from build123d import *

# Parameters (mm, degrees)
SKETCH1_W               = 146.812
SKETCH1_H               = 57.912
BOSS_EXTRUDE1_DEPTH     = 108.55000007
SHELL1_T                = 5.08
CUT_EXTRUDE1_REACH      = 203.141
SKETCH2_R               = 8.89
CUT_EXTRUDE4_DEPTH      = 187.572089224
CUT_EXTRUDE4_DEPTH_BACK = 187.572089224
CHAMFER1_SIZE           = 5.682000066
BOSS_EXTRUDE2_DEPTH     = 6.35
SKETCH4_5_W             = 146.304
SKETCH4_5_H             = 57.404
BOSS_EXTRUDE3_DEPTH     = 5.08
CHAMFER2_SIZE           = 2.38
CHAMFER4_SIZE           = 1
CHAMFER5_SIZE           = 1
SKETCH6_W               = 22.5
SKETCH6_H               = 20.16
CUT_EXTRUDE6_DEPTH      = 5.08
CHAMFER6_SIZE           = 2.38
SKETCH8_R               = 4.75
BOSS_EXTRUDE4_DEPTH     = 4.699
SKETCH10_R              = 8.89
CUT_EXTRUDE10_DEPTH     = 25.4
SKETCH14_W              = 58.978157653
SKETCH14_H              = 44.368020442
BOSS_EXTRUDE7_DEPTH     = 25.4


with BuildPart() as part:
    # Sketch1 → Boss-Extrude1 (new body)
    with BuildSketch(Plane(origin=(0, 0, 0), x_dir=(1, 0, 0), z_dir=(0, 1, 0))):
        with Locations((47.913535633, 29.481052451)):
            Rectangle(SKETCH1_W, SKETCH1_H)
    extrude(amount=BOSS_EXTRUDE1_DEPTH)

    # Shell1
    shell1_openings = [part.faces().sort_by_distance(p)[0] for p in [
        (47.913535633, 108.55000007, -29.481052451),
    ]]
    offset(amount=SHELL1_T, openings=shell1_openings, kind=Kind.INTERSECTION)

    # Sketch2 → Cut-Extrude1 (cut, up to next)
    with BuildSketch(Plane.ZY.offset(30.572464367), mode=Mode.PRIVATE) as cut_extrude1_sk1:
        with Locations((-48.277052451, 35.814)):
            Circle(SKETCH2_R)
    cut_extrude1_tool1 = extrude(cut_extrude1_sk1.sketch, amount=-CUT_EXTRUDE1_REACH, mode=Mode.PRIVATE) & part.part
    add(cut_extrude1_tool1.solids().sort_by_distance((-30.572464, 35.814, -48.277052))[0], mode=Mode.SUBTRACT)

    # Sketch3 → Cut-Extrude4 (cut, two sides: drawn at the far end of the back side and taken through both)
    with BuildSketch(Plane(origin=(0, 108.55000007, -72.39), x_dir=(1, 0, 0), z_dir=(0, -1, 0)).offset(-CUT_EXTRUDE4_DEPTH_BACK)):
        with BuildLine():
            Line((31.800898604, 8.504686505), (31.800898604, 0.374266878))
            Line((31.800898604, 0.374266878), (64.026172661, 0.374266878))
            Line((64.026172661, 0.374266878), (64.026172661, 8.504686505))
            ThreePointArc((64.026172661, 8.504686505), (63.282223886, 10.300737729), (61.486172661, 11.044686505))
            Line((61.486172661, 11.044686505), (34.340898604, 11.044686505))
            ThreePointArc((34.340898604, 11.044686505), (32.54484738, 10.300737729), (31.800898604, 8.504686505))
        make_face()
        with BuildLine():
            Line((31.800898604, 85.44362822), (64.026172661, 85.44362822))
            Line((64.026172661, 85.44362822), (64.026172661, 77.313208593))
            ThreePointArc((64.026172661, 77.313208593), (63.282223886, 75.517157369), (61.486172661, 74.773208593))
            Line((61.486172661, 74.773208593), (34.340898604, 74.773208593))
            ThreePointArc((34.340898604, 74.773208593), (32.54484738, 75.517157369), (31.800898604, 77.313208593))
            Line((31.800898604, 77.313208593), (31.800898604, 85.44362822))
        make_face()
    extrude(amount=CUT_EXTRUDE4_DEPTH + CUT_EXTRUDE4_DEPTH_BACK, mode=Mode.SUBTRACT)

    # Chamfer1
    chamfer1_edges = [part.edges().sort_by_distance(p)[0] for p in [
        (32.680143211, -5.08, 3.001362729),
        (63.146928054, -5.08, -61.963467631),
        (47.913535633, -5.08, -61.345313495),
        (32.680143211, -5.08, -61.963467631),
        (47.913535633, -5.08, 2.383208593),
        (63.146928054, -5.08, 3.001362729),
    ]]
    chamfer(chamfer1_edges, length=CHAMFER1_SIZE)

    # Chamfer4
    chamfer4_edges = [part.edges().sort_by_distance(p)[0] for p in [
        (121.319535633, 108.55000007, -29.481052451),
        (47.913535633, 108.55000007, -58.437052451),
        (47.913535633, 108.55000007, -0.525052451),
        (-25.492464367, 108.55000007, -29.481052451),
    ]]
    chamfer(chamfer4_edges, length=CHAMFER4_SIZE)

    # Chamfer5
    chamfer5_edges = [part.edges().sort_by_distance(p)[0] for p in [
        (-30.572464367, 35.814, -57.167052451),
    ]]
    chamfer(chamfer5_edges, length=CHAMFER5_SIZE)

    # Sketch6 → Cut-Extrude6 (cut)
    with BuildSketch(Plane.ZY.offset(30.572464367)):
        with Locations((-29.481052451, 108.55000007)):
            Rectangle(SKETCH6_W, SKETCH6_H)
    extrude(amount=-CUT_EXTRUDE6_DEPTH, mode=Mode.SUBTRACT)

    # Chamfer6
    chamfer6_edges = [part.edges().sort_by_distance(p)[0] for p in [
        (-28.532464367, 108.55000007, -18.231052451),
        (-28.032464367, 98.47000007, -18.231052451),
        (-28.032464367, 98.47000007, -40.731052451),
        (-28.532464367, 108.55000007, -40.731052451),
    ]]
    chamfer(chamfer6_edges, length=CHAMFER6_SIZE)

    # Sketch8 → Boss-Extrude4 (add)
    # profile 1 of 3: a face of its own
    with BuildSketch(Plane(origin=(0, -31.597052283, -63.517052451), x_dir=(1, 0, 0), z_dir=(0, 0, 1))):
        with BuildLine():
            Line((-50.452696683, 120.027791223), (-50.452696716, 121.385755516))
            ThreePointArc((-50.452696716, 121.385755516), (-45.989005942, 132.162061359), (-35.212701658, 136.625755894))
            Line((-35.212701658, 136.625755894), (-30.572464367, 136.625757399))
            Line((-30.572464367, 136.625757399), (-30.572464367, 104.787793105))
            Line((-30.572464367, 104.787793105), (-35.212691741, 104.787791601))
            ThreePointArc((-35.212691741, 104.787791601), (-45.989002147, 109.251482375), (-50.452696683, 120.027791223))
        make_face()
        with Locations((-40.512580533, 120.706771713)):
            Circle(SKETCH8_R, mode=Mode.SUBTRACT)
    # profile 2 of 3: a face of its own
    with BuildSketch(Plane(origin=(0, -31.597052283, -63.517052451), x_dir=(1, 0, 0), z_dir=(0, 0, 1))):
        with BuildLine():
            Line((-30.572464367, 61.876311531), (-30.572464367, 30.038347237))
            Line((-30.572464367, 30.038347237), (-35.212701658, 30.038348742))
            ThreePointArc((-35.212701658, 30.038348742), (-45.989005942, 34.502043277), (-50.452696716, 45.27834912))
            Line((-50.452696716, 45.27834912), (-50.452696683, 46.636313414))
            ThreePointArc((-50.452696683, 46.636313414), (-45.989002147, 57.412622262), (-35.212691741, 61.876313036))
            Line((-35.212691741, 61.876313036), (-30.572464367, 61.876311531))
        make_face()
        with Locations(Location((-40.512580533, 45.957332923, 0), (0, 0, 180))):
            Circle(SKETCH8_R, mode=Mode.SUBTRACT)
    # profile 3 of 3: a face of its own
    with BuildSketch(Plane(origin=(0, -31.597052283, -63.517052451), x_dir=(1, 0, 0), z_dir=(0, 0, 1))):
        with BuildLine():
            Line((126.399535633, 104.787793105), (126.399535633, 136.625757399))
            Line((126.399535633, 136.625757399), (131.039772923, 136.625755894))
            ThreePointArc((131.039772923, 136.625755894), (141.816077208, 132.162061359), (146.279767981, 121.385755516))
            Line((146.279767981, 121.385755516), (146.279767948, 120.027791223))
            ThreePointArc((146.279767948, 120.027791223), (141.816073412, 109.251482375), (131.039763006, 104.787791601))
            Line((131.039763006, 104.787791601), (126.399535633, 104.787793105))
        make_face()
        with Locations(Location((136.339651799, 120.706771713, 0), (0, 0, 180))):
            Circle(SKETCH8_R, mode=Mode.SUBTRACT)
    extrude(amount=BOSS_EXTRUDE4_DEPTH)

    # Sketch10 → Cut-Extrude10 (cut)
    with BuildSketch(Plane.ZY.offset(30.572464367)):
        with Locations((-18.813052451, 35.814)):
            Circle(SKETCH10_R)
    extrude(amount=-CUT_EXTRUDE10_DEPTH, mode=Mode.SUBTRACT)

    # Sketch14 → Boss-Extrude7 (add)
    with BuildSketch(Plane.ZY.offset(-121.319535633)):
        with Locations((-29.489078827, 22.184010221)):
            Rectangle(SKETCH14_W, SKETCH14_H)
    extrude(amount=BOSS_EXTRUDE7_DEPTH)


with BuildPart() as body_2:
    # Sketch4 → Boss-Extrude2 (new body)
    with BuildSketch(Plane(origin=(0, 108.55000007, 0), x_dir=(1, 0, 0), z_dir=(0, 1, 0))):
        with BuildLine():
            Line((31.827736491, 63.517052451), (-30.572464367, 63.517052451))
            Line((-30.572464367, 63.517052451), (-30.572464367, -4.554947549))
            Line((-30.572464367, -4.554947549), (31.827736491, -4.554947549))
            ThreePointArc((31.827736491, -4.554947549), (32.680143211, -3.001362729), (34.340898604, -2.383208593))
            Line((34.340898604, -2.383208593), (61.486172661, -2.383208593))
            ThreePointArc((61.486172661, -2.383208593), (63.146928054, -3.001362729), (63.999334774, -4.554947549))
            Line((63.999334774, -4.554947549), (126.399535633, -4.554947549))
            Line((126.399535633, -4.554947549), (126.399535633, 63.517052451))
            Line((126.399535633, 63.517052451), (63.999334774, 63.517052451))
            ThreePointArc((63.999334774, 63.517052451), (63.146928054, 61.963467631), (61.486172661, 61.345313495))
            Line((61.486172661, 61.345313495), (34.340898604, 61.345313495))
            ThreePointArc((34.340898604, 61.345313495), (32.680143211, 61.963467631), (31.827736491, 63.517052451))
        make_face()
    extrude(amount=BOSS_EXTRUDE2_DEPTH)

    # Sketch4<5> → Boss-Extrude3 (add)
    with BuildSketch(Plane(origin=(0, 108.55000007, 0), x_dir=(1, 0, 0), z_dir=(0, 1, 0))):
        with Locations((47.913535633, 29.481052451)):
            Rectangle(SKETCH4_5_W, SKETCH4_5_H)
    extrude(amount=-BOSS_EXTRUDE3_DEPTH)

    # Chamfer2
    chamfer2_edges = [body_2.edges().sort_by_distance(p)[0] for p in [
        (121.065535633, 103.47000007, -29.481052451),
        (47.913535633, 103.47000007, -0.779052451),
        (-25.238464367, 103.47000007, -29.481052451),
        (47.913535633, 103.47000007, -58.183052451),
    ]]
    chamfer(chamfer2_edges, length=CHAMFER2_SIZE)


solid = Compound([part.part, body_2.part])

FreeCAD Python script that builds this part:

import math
import FreeCAD as App
import Part
import Sketcher
Q = App.Units.Quantity


def edges_at(feature, points):
    """Names of the edges that pass closest to the given points."""
    edges = feature.Shape.Edges
    near = lambda p: min(range(len(edges)), key=lambda i: edges[i].distToShape(Part.Vertex(*p))[0])
    return sorted({f"Edge{near(p) + 1}" for p in points})


def faces_at(feature, points):
    """Names of the faces that lie closest to the given points."""
    faces = feature.Shape.Faces
    near = lambda p: min(range(len(faces)), key=lambda i: faces[i].distToShape(Part.Vertex(*p))[0])
    return sorted({f"Face{near(p) + 1}" for p in points})


def add_polygon(sketch, points):
    """Adds a closed chain of lines whose ends are joined by coincident constraints."""
    first, n = sketch.GeometryCount, len(points)
    for a, b in zip(points, points[1:] + points[:1]):
        sketch.addGeometry(Part.LineSegment(App.Vector(*a, 0), App.Vector(*b, 0)), False)
    for i in range(n):
        sketch.addConstraint(Sketcher.Constraint("Coincident", first + i, 2, first + (i + 1) % n, 1))

doc = App.newDocument("Part")
params = doc.addObject("Spreadsheet::Sheet", "Params")
for row, (alias, value) in enumerate([
    ("sketch1_width", "5.78 in"),
    ("sketch1_height", "2.28 in"),
    ("pad1_length", "108.55 mm"),
    ("thickness_wall", "0.2 in"),
    ("sketch2_diameter", "0.7 in"),
    ("sketch3_radius", "0.1 in"),
    ("chamfer_size", "5.682 mm"),
    ("chamfer2_size", "1 mm"),
    ("chamfer3_size", "1 mm"),
    ("pocket3_length", "0.2 in"),
    ("chamfer4_size", "2.38 mm"),
    ("sketch5_radius", "0.6 in"),
    ("sketch5_radius2", "0.6 in"),
    ("sketch5_radius3", "0.6 in"),
    ("sketch5_radius4", "0.6 in"),
    ("sketch5_radius5", "0.6 in"),
    ("pad2_length", "0.185 in"),
    ("sketch6_diameter", "0.7 in"),
    ("pocket4_length", "1 in"),
    ("pad3_length", "1 in"),
    ("sketch8_radius", "0.1 in"),
    ("sketch8_height", "2.68 in"),
    ("pad4_length", "0.25 in"),
    ("sketch9_width", "5.76 in"),
    ("sketch9_height", "2.26 in"),
    ("pad5_length", "0.2 in"),
    ("chamfer5_size", "2.38 mm"),
], start=1):
    params.set(f"A{row}", alias)
    params.set(f"B{row}", "=" + value)
    params.setAlias(f"B{row}", alias)

body = doc.addObject("PartDesign::Body", "Body")

# Sketch on XZ plane
sketch1 = body.newObject("Sketcher::SketchObject", "Sketch")
sketch1.AttachmentSupport = (doc.getObject("XZ_Plane"), [""])
sketch1.MapMode = "FlatFace"
add_polygon(sketch1, [(-25, -58), (-25, -1), (121, -1), (121, -58)])  # lines 0-3
sketch1.addConstraint([
    Sketcher.Constraint("Vertical", 0),
    Sketcher.Constraint("Horizontal", 1),
    Sketcher.Constraint("Vertical", 2),
    Sketcher.Constraint("Horizontal", 3),
    Sketcher.Constraint("DistanceX", 1, 1, 1, 2, Q("5.78 in")),
    Sketcher.Constraint("DistanceY", 0, 1, 0, 2, Q("2.28 in")),
    Sketcher.Constraint("DistanceX", 0, 2, -1, 1, Q("25.492464 mm")),
    Sketcher.Constraint("DistanceY", 0, 2, -1, 1, Q("0.525052 mm")),
])
sketch1.setExpression("Constraints[8]", "Params.sketch1_width")
sketch1.setExpression("Constraints[9]", "Params.sketch1_height")
pad1 = body.newObject("PartDesign::Pad", "Pad")
pad1.Profile = sketch1
pad1.setExpression("Length", "Params.pad1_length")
pad1.Reversed = True
doc.recompute()

thickness = body.newObject("PartDesign::Thickness", "Thickness")
thickness.Base = (pad1, faces_at(pad1, [(47.914, 108.55, -29.481)]))
thickness.setExpression("Value", "Params.thickness_wall")
thickness.Reversed = False
thickness.Join = "Intersection"

# Sketch on YZ plane
sketch2 = body.newObject("Sketcher::SketchObject", "Sketch001")
sketch2.AttachmentSupport = (doc.getObject("YZ_Plane"), [""])
sketch2.MapMode = "FlatFace"
sketch2.AttachmentOffset = App.Placement(App.Vector(0, 0, -30.572464), App.Rotation())
sketch2.addGeometry(Part.Circle(App.Vector(36, -48, 0), App.Vector(0, 0, 1), 9), False)
sketch2.addConstraint([
    Sketcher.Constraint("Diameter", 0, Q("0.7 in")),
    Sketcher.Constraint("DistanceX", -1, 1, 0, 3, Q("1.41 in")),
    Sketcher.Constraint("DistanceY", 0, 3, -1, 1, Q("48.277052 mm")),
])
sketch2.setExpression("Constraints[0]", "Params.sketch2_diameter")
pocket1 = body.newObject("PartDesign::Pocket", "Pocket")
pocket1.Profile = sketch2
pocket1.Type = "UpToFirst"
pocket1.Reversed = True

# Sketch on XZ plane
sketch3 = body.newObject("Sketcher::SketchObject", "Sketch002")
sketch3.AttachmentSupport = (doc.getObject("XZ_Plane"), [""])
sketch3.MapMode = "FlatFace"
sketch3.AttachmentOffset = App.Placement(App.Vector(0, 0, -108.55), App.Rotation())
sketch3.addGeometry([
    Part.LineSegment(App.Vector(31.8, -63.9, 0), App.Vector(31.8, -72, 0)),  # 0
    Part.LineSegment(App.Vector(31.8, -72, 0), App.Vector(64, -72, 0)),  # 1
    Part.LineSegment(App.Vector(64, -72, 0), App.Vector(64, -63.9, 0)),  # 2
    Part.ArcOfCircle(Part.Circle(App.Vector(61.5, -63.9, 0), App.Vector(0, 0, 1), 2.5), math.radians(0), math.radians(90)),  # 3
    Part.LineSegment(App.Vector(61.5, -61.3, 0), App.Vector(34.3, -61.3, 0)),  # 4
    Part.ArcOfCircle(Part.Circle(App.Vector(34.3, -63.9, 0), App.Vector(0, 0, 1), 2.5), math.radians(90), math.radians(180)),  # 5
    Part.LineSegment(App.Vector(64, 13.1, 0), App.Vector(31.8, 13.1, 0)),  # 6
    Part.LineSegment(App.Vector(31.8, 13.1, 0), App.Vector(31.8, 4.9, 0)),  # 7
    Part.ArcOfCircle(Part.Circle(App.Vector(34.3, 4.9, 0), App.Vector(0, 0, 1), 2.5), math.radians(-180), math.radians(-90)),  # 8
    Part.LineSegment(App.Vector(34.3, 2.4, 0), App.Vector(61.5, 2.4, 0)),  # 9
    Part.ArcOfCircle(Part.Circle(App.Vector(61.5, 4.9, 0), App.Vector(0, 0, 1), 2.5), math.radians(-90), math.radians(0)),  # 10
    Part.LineSegment(App.Vector(64, 4.9, 0), App.Vector(64, 13.1, 0)),  # 11
], False)
sketch3.addConstraint([
    Sketcher.Constraint("Coincident", 0, 2, 1, 1),
    Sketcher.Constraint("Coincident", 1, 2, 2, 1),
    Sketcher.Constraint("Tangent", 2, 2, 3, 1),
    Sketcher.Constraint("Tangent", 3, 2, 4, 1),
    Sketcher.Constraint("Tangent", 4, 2, 5, 1),
    Sketcher.Constraint("Tangent", 5, 2, 0, 1),
    Sketcher.Constraint("Coincident", 6, 2, 7, 1),
    Sketcher.Constraint("Tangent", 7, 2, 8, 1),
    Sketcher.Constraint("Tangent", 8, 2, 9, 1),
    Sketcher.Constraint("Tangent", 9, 2, 10, 1),
    Sketcher.Constraint("Tangent", 10, 2, 11, 1),
    Sketcher.Constraint("Coincident", 11, 2, 6, 1),
    Sketcher.Constraint("Vertical", 0),
    Sketcher.Constraint("Horizontal", 1),
    Sketcher.Constraint("Vertical", 2),
    Sketcher.Constraint("Horizontal", 4),
    Sketcher.Constraint("Horizontal", 6),
    Sketcher.Constraint("Vertical", 7),
    Sketcher.Constraint("Horizontal", 9),
    Sketcher.Constraint("Vertical", 11),
    Sketcher.Constraint("Equal", 3, 5),
    Sketcher.Constraint("Equal", 5, 8),
    Sketcher.Constraint("Equal", 8, 10),
    Sketcher.Constraint("Vertical", 5, 3, 8, 3),
    Sketcher.Constraint("Vertical", 3, 3, 10, 3),
    Sketcher.Constraint("Equal", 2, 7),
    Sketcher.Constraint("Radius", 3, Q("0.1 in")),
    Sketcher.Constraint("DistanceY", 0, 2, 0, 1, Q("8.13042 mm")),
    Sketcher.Constraint("DistanceX", -1, 1, 5, 3, Q("34.340899 mm")),
    Sketcher.Constraint("DistanceX", 1, 1, 1, 2, Q("32.225274 mm")),
    Sketcher.Constraint("DistanceY", -1, 1, 8, 3, Q("4.923209 mm")),
    Sketcher.Constraint("DistanceY", 0, 2, 8, 3, Q("76.938942 mm")),
])
sketch3.setExpression("Constraints[26]", "Params.sketch3_radius")
pocket2 = body.newObject("PartDesign::Pocket", "Pocket001")
pocket2.Profile = sketch3
pocket2.Type = "ThroughAll"
pocket2.Midplane = True
doc.recompute()

chamfer = body.newObject("PartDesign::Chamfer", "Chamfer")
chamfer.Base = (pocket2, edges_at(pocket2, [
    (32.68, -5.08, 3.001),
    (63.147, -5.08, -61.963),
    (47.914, -5.08, -61.345),
    (32.68, -5.08, -61.963),
    (47.914, -5.08, 2.383),
    (63.147, -5.08, 3.001),
]))
chamfer.setExpression("Size", "Params.chamfer_size")
doc.recompute()

chamfer2 = body.newObject("PartDesign::Chamfer", "Chamfer001")
chamfer2.Base = (chamfer, edges_at(chamfer, [
    (121.32, 108.55, -29.481),
    (47.914, 108.55, -58.437),
    (47.914, 108.55, -0.525),
    (-25.492, 108.55, -29.481),
]))
chamfer2.setExpression("Size", "Params.chamfer2_size")
doc.recompute()

chamfer3 = body.newObject("PartDesign::Chamfer", "Chamfer002")
chamfer3.Base = (chamfer2, edges_at(chamfer2, [(-30.572, 35.814, -57.167)]))
chamfer3.setExpression("Size", "Params.chamfer3_size")

# Sketch on YZ plane
sketch4 = body.newObject("Sketcher::SketchObject", "Sketch003")
sketch4.AttachmentSupport = (doc.getObject("YZ_Plane"), [""])
sketch4.MapMode = "FlatFace"
sketch4.AttachmentOffset = App.Placement(App.Vector(0, 0, -30.572464), App.Rotation())
add_polygon(sketch4, [(119, -41), (98, -41), (98, -18), (119, -18)])  # lines 0-3
sketch4.addConstraint([
    Sketcher.Constraint("Horizontal", 0),
    Sketcher.Constraint("Vertical", 1),
    Sketcher.Constraint("Horizontal", 2),
    Sketcher.Constraint("Vertical", 3),
    Sketcher.Constraint("DistanceX", 0, 2, 0, 1, Q("20.16 mm")),
    Sketcher.Constraint("DistanceY", 1, 1, 1, 2, Q("22.5 mm")),
    Sketcher.Constraint("DistanceX", -1, 1, 0, 2, Q("98.47 mm")),
    Sketcher.Constraint("DistanceY", 0, 2, -1, 1, Q("40.731052 mm")),
])
pocket3 = body.newObject("PartDesign::Pocket", "Pocket002")
pocket3.Profile = sketch4
pocket3.setExpression("Length", "Params.pocket3_length")
pocket3.Reversed = True
doc.recompute()

chamfer4 = body.newObject("PartDesign::Chamfer", "Chamfer003")
chamfer4.Base = (pocket3, edges_at(pocket3, [
    (-28.532, 108.55, -18.231),
    (-28.032, 98.47, -18.231),
    (-28.032, 98.47, -40.731),
    (-28.532, 108.55, -40.731),
]))
chamfer4.setExpression("Size", "Params.chamfer4_size")

# Sketch on XY plane
sketch5 = body.newObject("Sketcher::SketchObject", "Sketch004")
sketch5.AttachmentSupport = (doc.getObject("XY_Plane"), [""])
sketch5.MapMode = "FlatFace"
sketch5.AttachmentOffset = App.Placement(App.Vector(0, 0, -63.517052), App.Rotation())
sketch5.addGeometry([
    Part.LineSegment(App.Vector(-50.452697, 89.788703, 0), App.Vector(-50.452697, 88.430739, 0)),  # 0
    Part.ArcOfCircle(Part.Circle(App.Vector(-35.212697, 88.430739, 0), App.Vector(0, 0, 1), 15.24), math.radians(-179.999999), math.radians(-89.999981)),  # 1
    Part.LineSegment(App.Vector(-35.212692, 73.190739, 0), App.Vector(-30.572464, 73.190741, 0)),  # 2
    Part.LineSegment(App.Vector(-30.572464, 73.190741, 0), App.Vector(-30.572464, 105.028705, 0)),  # 3
    Part.LineSegment(App.Vector(-30.572464, 105.028705, 0), App.Vector(-35.212702, 105.028704, 0)),  # 4
    Part.ArcOfCircle(Part.Circle(App.Vector(-35.212697, 89.788704, 0), App.Vector(0, 0, 1), 15.24), math.radians(90.000019), math.radians(180.000001)),  # 5
    Part.Circle(App.Vector(-40.512581, 89.109719, 0), App.Vector(0, 0, 1), 4.75),  # 6
    Part.LineSegment(App.Vector(-30.572464, -1.558705, 0), App.Vector(-30.572464, 30.279259, 0)),  # 7
    Part.LineSegment(App.Vector(-30.572464, 30.279259, 0), App.Vector(-35.212692, 30.279261, 0)),  # 8
    Part.ArcOfCircle(Part.Circle(App.Vector(-35.212697, 15.039261, 0), App.Vector(0, 0, 1), 15.24), math.radians(89.999981), math.radians(179.999999)),  # 9
    Part.LineSegment(App.Vector(-50.452697, 15.039261, 0), App.Vector(-50.452697, 13.681297, 0)),  # 10
    Part.ArcOfCircle(Part.Circle(App.Vector(-35.212697, 13.681296, 0), App.Vector(0, 0, 1), 15.24), math.radians(179.999999), math.radians(269.999981)),  # 11
    Part.LineSegment(App.Vector(-35.212702, -1.558704, 0), App.Vector(-30.572464, -1.558705, 0)),  # 12
    Part.Circle(App.Vector(-40.512581, 14.360281, 0), App.Vector(0, 0, 1), 4.75),  # 13
    Part.LineSegment(App.Vector(126.399536, 105.028705, 0), App.Vector(126.399536, 73.190741, 0)),  # 14
    Part.LineSegment(App.Vector(126.399536, 73.190741, 0), App.Vector(131.039763, 73.190739, 0)),  # 15
    Part.ArcOfCircle(Part.Circle(App.Vector(131.039768, 88.430739, 0), App.Vector(0, 0, 1), 15.24), math.radians(-90.000019), math.radians(-0.000001)),  # 16
    Part.LineSegment(App.Vector(146.279768, 88.430739, 0), App.Vector(146.279768, 89.788703, 0)),  # 17
    Part.ArcOfCircle(Part.Circle(App.Vector(131.039768, 89.788704, 0), App.Vector(0, 0, 1), 15.24), math.radians(-0.000001), math.radians(89.999981)),  # 18
    Part.LineSegment(App.Vector(131.039773, 105.028704, 0), App.Vector(126.399536, 105.028705, 0)),  # 19
    Part.Circle(App.Vector(136.339652, 89.109719, 0), App.Vector(0, 0, 1), 4.75),  # 20
], False)
sketch5.addConstraint([
    Sketcher.Constraint("Coincident", 0, 2, 1, 1),
    Sketcher.Constraint("Coincident", 1, 2, 2, 1),
    Sketcher.Constraint("Coincident", 2, 2, 3, 1),
    Sketcher.Constraint("Coincident", 3, 2, 4, 1),
    Sketcher.Constraint("Coincident", 4, 2, 5, 1),
    Sketcher.Constraint("Coincident", 5, 2, 0, 1),
    Sketcher.Constraint("Coincident", 7, 2, 8, 1),
    Sketcher.Constraint("Coincident", 8, 2, 9, 1),
    Sketcher.Constraint("Coincident", 9, 2, 10, 1),
    Sketcher.Constraint("Coincident", 10, 2, 11, 1),
    Sketcher.Constraint("Coincident", 11, 2, 12, 1),
    Sketcher.Constraint("Coincident", 12, 2, 7, 1),
    Sketcher.Constraint("Coincident", 14, 2, 15, 1),
    Sketcher.Constraint("Coincident", 15, 2, 16, 1),
    Sketcher.Constraint("Coincident", 16, 2, 17, 1),
    Sketcher.Constraint("Coincident", 17, 2, 18, 1),
    Sketcher.Constraint("Coincident", 18, 2, 19, 1),
    Sketcher.Constraint("Coincident", 19, 2, 14, 1),
    Sketcher.Constraint("Vertical", 0),
    Sketcher.Constraint("Horizontal", 2),
    Sketcher.Constraint("Vertical", 3),
    Sketcher.Constraint("Horizontal", 4),
    Sketcher.Constraint("Vertical", 7),
    Sketcher.Constraint("Horizontal", 8),
    Sketcher.Constraint("Vertical", 10),
    Sketcher.Constraint("Horizontal", 12),
    Sketcher.Constraint("Vertical", 14),
    Sketcher.Constraint("Horizontal", 15),
    Sketcher.Constraint("Vertical", 17),
    Sketcher.Constraint("Horizontal", 19),
    Sketcher.Constraint("Radius", 1, Q("0.6 in")),
    Sketcher.Constraint("Radius", 5, Q("0.6 in")),
    Sketcher.Constraint("Radius", 9, Q("0.6 in")),
    Sketcher.Constraint("Radius", 11, Q("0.6 in")),
    Sketcher.Constraint("Radius", 16, Q("0.6 in")),
    Sketcher.Constraint("Radius", 18, Q("0.6 in")),
    Sketcher.Constraint("DistanceX", 0, 2, 9, 3, Q("0.6 in")),
    Sketcher.Constraint("DistanceX", 0, 2, 1, 2, Q("0.6000002 in")),
    Sketcher.Constraint("DistanceY", 1, 2, 0, 2, Q("0.6 in")),
    Sketcher.Constraint("DistanceX", 0, 2, 4, 2, Q("0.5999998 in")),
    Sketcher.Constraint("DistanceY", 5, 2, 4, 2, Q("0.6 in")),
    Sketcher.Constraint("DistanceX", 9, 2, 8, 2, Q("0.6000002 in")),
    Sketcher.Constraint("DistanceY", 9, 2, 8, 2, Q("0.6 in")),
    Sketcher.Constraint("DistanceX", 10, 2, 11, 2, Q("0.5999998 in")),
    Sketcher.Constraint("DistanceY", 11, 2, 10, 2, Q("0.6 in")),
    Sketcher.Constraint("DistanceX", 15, 2, 16, 2, Q("0.6000002 in")),
    Sketcher.Constraint("DistanceY", 15, 2, 16, 2, Q("0.6 in")),
    Sketcher.Constraint("DistanceX", 18, 2, 17, 2, Q("0.5999998 in")),
    Sketcher.Constraint("DistanceY", 17, 2, 18, 2, Q("0.6 in")),
    Sketcher.Constraint("Diameter", 6, Q("9.5 mm")),
    Sketcher.Constraint("Diameter", 13, Q("9.5 mm")),
    Sketcher.Constraint("Diameter", 20, Q("9.5 mm")),
    Sketcher.Constraint("DistanceX", 2, 2, 14, 2, Q("6.18 in")),
    Sketcher.Constraint("DistanceX", 4, 2, -1, 1, Q("35.212702 mm")),
    Sketcher.Constraint("DistanceX", 2, 1, 2, 2, Q("4.640227 mm")),
    Sketcher.Constraint("DistanceX", 8, 2, 8, 1, Q("4.640227 mm")),
    Sketcher.Constraint("DistanceX", 15, 1, 15, 2, Q("4.640227 mm")),
    Sketcher.Constraint("DistanceY", 0, 2, 0, 1, Q("1.357964 mm")),
    Sketcher.Constraint("DistanceY", 7, 1, 7, 2, Q("31.837964 mm")),
    Sketcher.Constraint("DistanceY", 14, 2, 14, 1, Q("31.837964 mm")),
    Sketcher.Constraint("DistanceY", -1, 1, 1, 3, Q("88.430739 mm")),
    Sketcher.Constraint("DistanceX", 6, 3, -1, 1, Q("40.512581 mm")),
    Sketcher.Constraint("DistanceY", -1, 1, 6, 3, Q("89.109719 mm")),
    Sketcher.Constraint("DistanceY", -1, 1, 9, 3, Q("15.039261 mm")),
    Sketcher.Constraint("DistanceX", 13, 3, -1, 1, Q("40.512581 mm")),
    Sketcher.Constraint("DistanceY", -1, 1, 13, 3, Q("14.360281 mm")),
    Sketcher.Constraint("DistanceY", -1, 1, 16, 3, Q("88.430739 mm")),
    Sketcher.Constraint("DistanceX", -1, 1, 20, 3, Q("136.339652 mm")),
    Sketcher.Constraint("DistanceY", -1, 1, 20, 3, Q("89.109719 mm")),
])
sketch5.setExpression("Constraints[30]", "Params.sketch5_radius")
sketch5.setExpression("Constraints[31]", "Params.sketch5_radius2")
sketch5.setExpression("Constraints[32]", "Params.sketch5_radius3")
sketch5.setExpression("Constraints[33]", "Params.sketch5_radius4")
sketch5.setExpression("Constraints[34]", "Params.sketch5_radius5")
pad2 = body.newObject("PartDesign::Pad", "Pad001")
pad2.Profile = sketch5
pad2.setExpression("Length", "Params.pad2_length")

# Sketch on YZ plane
sketch6 = body.newObject("Sketcher::SketchObject", "Sketch005")
sketch6.AttachmentSupport = (doc.getObject("YZ_Plane"), [""])
sketch6.MapMode = "FlatFace"
sketch6.AttachmentOffset = App.Placement(App.Vector(0, 0, -30.572464), App.Rotation())
sketch6.addGeometry(Part.Circle(App.Vector(36, -19, 0), App.Vector(0, 0, 1), 9), False)
sketch6.addConstraint([
    Sketcher.Constraint("Diameter", 0, Q("0.7 in")),
    Sketcher.Constraint("DistanceX", -1, 1, 0, 3, Q("1.41 in")),
    Sketcher.Constraint("DistanceY", 0, 3, -1, 1, Q("18.813052 mm")),
])
sketch6.setExpression("Constraints[0]", "Params.sketch6_diameter")
pocket4 = body.newObject("PartDesign::Pocket", "Pocket003")
pocket4.Profile = sketch6
pocket4.setExpression("Length", "Params.pocket4_length")
pocket4.Reversed = True

# Sketch on YZ plane
sketch7 = body.newObject("Sketcher::SketchObject", "Sketch006")
sketch7.AttachmentSupport = (doc.getObject("YZ_Plane"), [""])
sketch7.MapMode = "FlatFace"
sketch7.AttachmentOffset = App.Placement(App.Vector(0, 0, 121.319536), App.Rotation())
add_polygon(sketch7, [(44, -59), (0, -59), (0, 0), (44, 0)])  # lines 0-3
sketch7.addConstraint([
    Sketcher.Constraint("Horizontal", 0),
    Sketcher.Constraint("Vertical", 1),
    Sketcher.Constraint("Horizontal", 2),
    Sketcher.Constraint("Vertical", 3),
    Sketcher.Constraint("Coincident", 1, 2, -1, 1),
    Sketcher.Constraint("DistanceX", 0, 2, 0, 1, Q("44.36802 mm")),
    Sketcher.Constraint("DistanceY", 1, 1, 1, 2, Q("58.978158 mm")),
])
pad3 = body.newObject("PartDesign::Pad", "Pad002")
pad3.Profile = sketch7
pad3.setExpression("Length", "Params.pad3_length")
pad3.Reversed = True
body2 = doc.addObject("PartDesign::Body", "Body001")

# Sketch on XZ plane
sketch8 = body2.newObject("Sketcher::SketchObject", "Sketch007")
sketch8.AttachmentSupport = (doc.getObject("XZ_Plane001"), [""])
sketch8.MapMode = "FlatFace"
sketch8.AttachmentOffset = App.Placement(App.Vector(0, 0, -108.55), App.Rotation())
sketch8.addGeometry([
    Part.LineSegment(App.Vector(31.8, -63.5, 0), App.Vector(-30.6, -63.5, 0)),  # 0
    Part.LineSegment(App.Vector(-30.6, -63.5, 0), App.Vector(-30.6, 4.6, 0)),  # 1
    Part.LineSegment(App.Vector(-30.6, 4.6, 0), App.Vector(31.8, 4.6, 0)),  # 2
    Part.ArcOfCircle(Part.Circle(App.Vector(34.3, 4.9, 0), App.Vector(0, 0, 1), 2.5), math.radians(-172), math.radians(-90)),  # 3
    Part.LineSegment(App.Vector(34.3, 2.4, 0), App.Vector(61.5, 2.4, 0)),  # 4
    Part.ArcOfCircle(Part.Circle(App.Vector(61.5, 4.9, 0), App.Vector(0, 0, 1), 2.5), math.radians(-90), math.radians(-8)),  # 5
    Part.LineSegment(App.Vector(64, 4.6, 0), App.Vector(126.4, 4.6, 0)),  # 6
    Part.LineSegment(App.Vector(126.4, 4.6, 0), App.Vector(126.4, -63.5, 0)),  # 7
    Part.LineSegment(App.Vector(126.4, -63.5, 0), App.Vector(64, -63.5, 0)),  # 8
    Part.ArcOfCircle(Part.Circle(App.Vector(61.5, -63.9, 0), App.Vector(0, 0, 1), 2.5), math.radians(8), math.radians(90)),  # 9
    Part.LineSegment(App.Vector(61.5, -61.3, 0), App.Vector(34.3, -61.3, 0)),  # 10
    Part.ArcOfCircle(Part.Circle(App.Vector(34.3, -63.9, 0), App.Vector(0, 0, 1), 2.5), math.radians(90), math.radians(172)),  # 11
], False)
sketch8.addConstraint([
    Sketcher.Constraint("Coincident", 0, 2, 1, 1),
    Sketcher.Constraint("Coincident", 1, 2, 2, 1),
    Sketcher.Constraint("Coincident", 2, 2, 3, 1),
    Sketcher.Constraint("Tangent", 3, 2, 4, 1),
    Sketcher.Constraint("Tangent", 4, 2, 5, 1),
    Sketcher.Constraint("Coincident", 5, 2, 6, 1),
    Sketcher.Constraint("Coincident", 6, 2, 7, 1),
    Sketcher.Constraint("Coincident", 7, 2, 8, 1),
    Sketcher.Constraint("Coincident", 8, 2, 9, 1),
    Sketcher.Constraint("Tangent", 9, 2, 10, 1),
    Sketcher.Constraint("Tangent", 10, 2, 11, 1),
    Sketcher.Constraint("Coincident", 11, 2, 0, 1),
    Sketcher.Constraint("Horizontal", 0),
    Sketcher.Constraint("Vertical", 1),
    Sketcher.Constraint("Horizontal", 2),
    Sketcher.Constraint("Horizontal", 4),
    Sketcher.Constraint("Horizontal", 6),
    Sketcher.Constraint("Vertical", 7),
    Sketcher.Constraint("Horizontal", 8),
    Sketcher.Constraint("Horizontal", 10),
    Sketcher.Constraint("Equal", 3, 5),
    Sketcher.Constraint("Equal", 5, 9),
    Sketcher.Constraint("Equal", 9, 11),
    Sketcher.Constraint("Horizontal", 2, 2, 5, 2),
    Sketcher.Constraint("Horizontal", 0, 2, 7, 2),
    Sketcher.Constraint("Vertical", 5, 3, 9, 3),
    Sketcher.Constraint("Vertical", 3, 3, 11, 3),
    Sketcher.Constraint("Vertical", 5, 2, 8, 2),
    Sketcher.Constraint("Equal", 2, 6),
    Sketcher.Constraint("Radius", 3, Q("0.1 in")),
    Sketcher.Constraint("DistanceY", 1, 1, 1, 2, Q("2.68 in")),
    Sketcher.Constraint("DistanceX", 0, 2, 0, 1, Q("62.400201 mm")),
    Sketcher.Constraint("DistanceX", -1, 1, 3, 3, Q("34.340899 mm")),
    Sketcher.Constraint("DistanceX", 2, 2, 5, 2, Q("32.171598 mm")),
    Sketcher.Constraint("DistanceX", 4, 1, 4, 2, Q("27.145274 mm")),
    Sketcher.Constraint("DistanceY", -1, 1, 3, 3, Q("4.923209 mm")),
])
sketch8.setExpression("Constraints[29]", "Params.sketch8_radius")
sketch8.setExpression("Constraints[30]", "Params.sketch8_height")
pad4 = body2.newObject("PartDesign::Pad", "Pad003")
pad4.Profile = sketch8
pad4.setExpression("Length", "Params.pad4_length")
pad4.Reversed = True

# Sketch on XZ plane
sketch9 = body2.newObject("Sketcher::SketchObject", "Sketch008")
sketch9.AttachmentSupport = (doc.getObject("XZ_Plane001"), [""])
sketch9.MapMode = "FlatFace"
sketch9.AttachmentOffset = App.Placement(App.Vector(0, 0, -108.55), App.Rotation())
add_polygon(sketch9, [(-25, -58), (-25, -1), (121, -1), (121, -58)])  # lines 0-3
sketch9.addConstraint([
    Sketcher.Constraint("Vertical", 0),
    Sketcher.Constraint("Horizontal", 1),
    Sketcher.Constraint("Vertical", 2),
    Sketcher.Constraint("Horizontal", 3),
    Sketcher.Constraint("DistanceX", 1, 1, 1, 2, Q("5.76 in")),
    Sketcher.Constraint("DistanceY", 0, 1, 0, 2, Q("2.26 in")),
    Sketcher.Constraint("DistanceX", 0, 2, -1, 1, Q("25.238464 mm")),
    Sketcher.Constraint("DistanceY", 0, 2, -1, 1, Q("0.779052 mm")),
])
sketch9.setExpression("Constraints[8]", "Params.sketch9_width")
sketch9.setExpression("Constraints[9]", "Params.sketch9_height")
pad5 = body2.newObject("PartDesign::Pad", "Pad004")
pad5.Profile = sketch9
pad5.setExpression("Length", "Params.pad5_length")
doc.recompute()

chamfer5 = body2.newObject("PartDesign::Chamfer", "Chamfer004")
chamfer5.Base = (pad5, edges_at(pad5, [
    (121.066, 103.47, -29.481),
    (47.914, 103.47, -0.779),
    (-25.238, 103.47, -29.481),
    (47.914, 103.47, -58.183),
]))
chamfer5.setExpression("Size", "Params.chamfer5_size")

doc.recompute()
